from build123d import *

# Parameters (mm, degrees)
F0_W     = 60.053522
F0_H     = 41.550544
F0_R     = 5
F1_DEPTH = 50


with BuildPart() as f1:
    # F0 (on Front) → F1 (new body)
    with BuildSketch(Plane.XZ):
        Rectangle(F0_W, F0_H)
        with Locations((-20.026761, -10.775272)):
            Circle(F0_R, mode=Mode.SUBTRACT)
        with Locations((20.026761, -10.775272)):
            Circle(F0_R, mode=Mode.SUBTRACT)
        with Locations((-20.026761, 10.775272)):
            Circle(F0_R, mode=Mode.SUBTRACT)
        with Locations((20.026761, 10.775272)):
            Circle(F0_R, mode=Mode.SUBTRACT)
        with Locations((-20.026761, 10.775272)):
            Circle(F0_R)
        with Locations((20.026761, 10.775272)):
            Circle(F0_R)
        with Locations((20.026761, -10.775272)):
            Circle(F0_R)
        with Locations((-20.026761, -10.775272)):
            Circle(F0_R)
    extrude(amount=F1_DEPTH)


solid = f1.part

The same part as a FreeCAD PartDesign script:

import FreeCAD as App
import Part
import Sketcher

V = App.Vector
Q = App.Units.Quantity


def add_polygon(sketch, points):
    """Adds a closed chain of lines whose ends are joined by coincident constraints."""
    first, n = sketch.GeometryCount, len(points)
    for a, b in zip(points, points[1:] + points[:1]):
        sketch.addGeometry(Part.LineSegment(App.Vector(*a, 0), App.Vector(*b, 0)), False)
    for i in range(n):
        sketch.addConstraint(Sketcher.Constraint("Coincident", first + i, 2, first + (i + 1) % n, 1))

doc = App.newDocument("Part")
body = doc.addObject("PartDesign::Body", "Body")

# Sketch on XZ plane
sketch1 = body.newObject("Sketcher::SketchObject", "Sketch")
sketch1.AttachmentSupport = (doc.getObject("XZ_Plane"), [""])
sketch1.MapMode = "FlatFace"
add_polygon(sketch1, [(-30, 21), (-30, -21), (30, -21), (30, 21)])  # lines 0-3
sketch1.addConstraint(Sketcher.Constraint("Vertical", 0))
sketch1.addConstraint(Sketcher.Constraint("Horizontal", 1))
sketch1.addConstraint(Sketcher.Constraint("Vertical", 2))
sketch1.addConstraint(Sketcher.Constraint("Horizontal", 3))
sketch1.addConstraint(Sketcher.Constraint("Symmetric", 0, 2, 2, 2, -1, 1))
sketch1.addConstraint(Sketcher.Constraint("DistanceX", 1, 1, 1, 2, Q("60.053522 mm")))
sketch1.addConstraint(Sketcher.Constraint("DistanceY", 0, 2, 0, 1, Q("41.550544 mm")))
pad1 = body.newObject("PartDesign::Pad", "Pad")
pad1.Profile = sketch1
pad1.Length = 50

doc.recompute()
